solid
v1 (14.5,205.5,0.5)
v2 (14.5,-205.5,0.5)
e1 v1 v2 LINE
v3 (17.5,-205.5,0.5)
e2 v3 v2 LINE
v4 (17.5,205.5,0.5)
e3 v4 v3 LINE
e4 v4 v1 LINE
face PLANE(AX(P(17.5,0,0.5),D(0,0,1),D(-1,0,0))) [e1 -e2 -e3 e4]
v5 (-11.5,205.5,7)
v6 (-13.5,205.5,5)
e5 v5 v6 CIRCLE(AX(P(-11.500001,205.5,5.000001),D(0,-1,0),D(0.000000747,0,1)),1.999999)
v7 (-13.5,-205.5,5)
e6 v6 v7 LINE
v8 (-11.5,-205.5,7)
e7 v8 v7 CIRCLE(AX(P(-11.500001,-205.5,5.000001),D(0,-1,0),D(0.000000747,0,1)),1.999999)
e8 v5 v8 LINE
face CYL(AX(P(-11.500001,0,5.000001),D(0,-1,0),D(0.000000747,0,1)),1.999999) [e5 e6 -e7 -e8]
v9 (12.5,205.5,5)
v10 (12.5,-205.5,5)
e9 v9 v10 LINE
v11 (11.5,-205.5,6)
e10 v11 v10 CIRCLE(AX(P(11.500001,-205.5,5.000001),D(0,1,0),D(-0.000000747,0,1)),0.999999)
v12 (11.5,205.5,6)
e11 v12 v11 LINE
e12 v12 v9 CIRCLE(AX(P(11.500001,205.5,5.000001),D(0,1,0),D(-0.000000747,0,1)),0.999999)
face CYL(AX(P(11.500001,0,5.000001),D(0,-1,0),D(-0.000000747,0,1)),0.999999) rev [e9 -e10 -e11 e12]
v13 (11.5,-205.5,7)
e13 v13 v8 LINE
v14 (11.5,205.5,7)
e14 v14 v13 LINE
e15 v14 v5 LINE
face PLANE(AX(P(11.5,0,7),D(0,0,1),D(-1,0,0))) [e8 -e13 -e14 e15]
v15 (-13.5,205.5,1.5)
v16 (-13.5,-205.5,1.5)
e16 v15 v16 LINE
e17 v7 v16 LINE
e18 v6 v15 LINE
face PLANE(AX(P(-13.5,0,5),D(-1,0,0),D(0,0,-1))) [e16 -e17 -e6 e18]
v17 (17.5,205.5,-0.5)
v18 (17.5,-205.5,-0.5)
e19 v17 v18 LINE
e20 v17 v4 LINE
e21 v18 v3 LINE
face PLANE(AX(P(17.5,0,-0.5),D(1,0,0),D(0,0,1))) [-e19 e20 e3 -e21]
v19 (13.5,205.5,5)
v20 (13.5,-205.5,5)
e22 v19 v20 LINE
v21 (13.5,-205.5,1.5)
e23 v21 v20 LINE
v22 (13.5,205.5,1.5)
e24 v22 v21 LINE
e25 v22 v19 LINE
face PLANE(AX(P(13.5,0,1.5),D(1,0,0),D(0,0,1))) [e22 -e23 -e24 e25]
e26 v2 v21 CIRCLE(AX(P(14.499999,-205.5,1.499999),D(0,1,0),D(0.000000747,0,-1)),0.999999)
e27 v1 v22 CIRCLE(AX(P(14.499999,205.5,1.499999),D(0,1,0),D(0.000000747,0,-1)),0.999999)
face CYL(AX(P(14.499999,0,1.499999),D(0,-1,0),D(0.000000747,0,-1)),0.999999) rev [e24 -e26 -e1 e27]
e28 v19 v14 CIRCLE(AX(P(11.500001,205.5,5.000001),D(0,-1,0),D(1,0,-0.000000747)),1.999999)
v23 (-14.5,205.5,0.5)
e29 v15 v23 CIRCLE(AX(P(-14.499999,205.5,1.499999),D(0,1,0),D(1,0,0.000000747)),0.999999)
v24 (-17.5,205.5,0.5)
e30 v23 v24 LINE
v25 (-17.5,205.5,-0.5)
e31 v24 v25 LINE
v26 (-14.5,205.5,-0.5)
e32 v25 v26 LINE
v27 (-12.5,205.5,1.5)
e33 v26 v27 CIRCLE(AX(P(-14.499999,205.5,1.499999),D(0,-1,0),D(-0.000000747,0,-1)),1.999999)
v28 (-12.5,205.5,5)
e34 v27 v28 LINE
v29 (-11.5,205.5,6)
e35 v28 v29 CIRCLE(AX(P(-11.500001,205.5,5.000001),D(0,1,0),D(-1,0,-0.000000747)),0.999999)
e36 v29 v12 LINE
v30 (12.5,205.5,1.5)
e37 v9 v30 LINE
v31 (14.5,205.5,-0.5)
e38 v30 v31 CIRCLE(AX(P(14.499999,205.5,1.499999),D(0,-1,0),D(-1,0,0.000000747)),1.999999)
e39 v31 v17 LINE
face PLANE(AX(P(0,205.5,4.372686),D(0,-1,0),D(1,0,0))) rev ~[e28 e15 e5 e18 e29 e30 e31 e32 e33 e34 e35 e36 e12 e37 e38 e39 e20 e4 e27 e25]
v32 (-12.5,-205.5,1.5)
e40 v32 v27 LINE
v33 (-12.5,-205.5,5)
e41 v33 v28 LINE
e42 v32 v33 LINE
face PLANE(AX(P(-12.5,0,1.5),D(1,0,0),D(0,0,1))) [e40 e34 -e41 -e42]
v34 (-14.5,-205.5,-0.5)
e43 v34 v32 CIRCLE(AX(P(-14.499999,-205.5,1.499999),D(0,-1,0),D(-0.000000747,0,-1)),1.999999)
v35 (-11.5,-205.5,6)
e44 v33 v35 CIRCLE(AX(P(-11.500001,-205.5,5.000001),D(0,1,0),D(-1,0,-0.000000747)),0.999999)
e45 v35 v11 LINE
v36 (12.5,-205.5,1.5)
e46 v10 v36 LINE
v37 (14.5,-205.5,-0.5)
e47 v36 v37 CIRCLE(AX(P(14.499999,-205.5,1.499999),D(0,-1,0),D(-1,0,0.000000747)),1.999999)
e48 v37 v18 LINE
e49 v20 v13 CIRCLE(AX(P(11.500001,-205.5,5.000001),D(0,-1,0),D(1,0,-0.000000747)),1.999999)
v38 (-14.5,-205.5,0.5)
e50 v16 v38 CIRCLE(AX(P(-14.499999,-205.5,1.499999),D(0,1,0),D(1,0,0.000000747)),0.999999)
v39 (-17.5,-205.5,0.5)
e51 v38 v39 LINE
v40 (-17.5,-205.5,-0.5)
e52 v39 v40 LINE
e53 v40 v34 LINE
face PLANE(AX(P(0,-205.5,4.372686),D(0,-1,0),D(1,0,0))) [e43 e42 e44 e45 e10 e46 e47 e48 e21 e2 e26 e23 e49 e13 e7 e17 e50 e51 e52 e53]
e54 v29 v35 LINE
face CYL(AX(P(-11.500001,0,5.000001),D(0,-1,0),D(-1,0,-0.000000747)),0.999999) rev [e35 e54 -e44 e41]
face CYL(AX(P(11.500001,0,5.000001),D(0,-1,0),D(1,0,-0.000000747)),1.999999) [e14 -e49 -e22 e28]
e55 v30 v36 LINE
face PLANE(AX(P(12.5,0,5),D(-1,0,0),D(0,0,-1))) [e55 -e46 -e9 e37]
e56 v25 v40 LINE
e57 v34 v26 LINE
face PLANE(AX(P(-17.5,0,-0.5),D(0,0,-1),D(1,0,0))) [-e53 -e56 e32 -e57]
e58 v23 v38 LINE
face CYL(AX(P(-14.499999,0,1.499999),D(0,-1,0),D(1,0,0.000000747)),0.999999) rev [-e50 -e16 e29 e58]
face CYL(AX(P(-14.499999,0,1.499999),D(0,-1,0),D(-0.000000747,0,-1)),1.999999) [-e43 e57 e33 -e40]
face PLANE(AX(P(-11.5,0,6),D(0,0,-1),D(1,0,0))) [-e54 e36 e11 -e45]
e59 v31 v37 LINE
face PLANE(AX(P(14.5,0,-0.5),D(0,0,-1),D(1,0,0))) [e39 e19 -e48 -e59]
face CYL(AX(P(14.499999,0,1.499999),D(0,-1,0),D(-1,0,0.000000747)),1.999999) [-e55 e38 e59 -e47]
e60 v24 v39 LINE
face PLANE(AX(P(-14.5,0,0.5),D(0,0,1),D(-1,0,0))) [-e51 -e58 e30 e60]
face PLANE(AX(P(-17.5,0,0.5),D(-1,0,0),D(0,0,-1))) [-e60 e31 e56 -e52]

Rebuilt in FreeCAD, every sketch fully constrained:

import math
import FreeCAD as App
import Part
import Sketcher

V = App.Vector

doc = App.newDocument("Part")
body = doc.addObject("PartDesign::Body", "Body")

sketch1 = doc.addObject("Sketcher::SketchObject", "Sketch")
body.addObject(sketch1)
sketch1.AttachmentSupport = (doc.XZ_Plane, [""])
sketch1.MapMode = "FlatFace"
sketch1.addGeometry([
    Part.ArcOfCircle(Part.Circle(V(-11.5, 5, 0), V(0, 0, 1), 1), math.radians(90), math.radians(180)),
    Part.LineSegment(V(-11.5, 6, 0), V(11.5, 6, 0)),
    Part.ArcOfCircle(Part.Circle(V(11.5, 5, 0), V(0, 0, 1), 1), math.radians(0), math.radians(90)),
    Part.LineSegment(V(12.5, 5, 0), V(12.5, 1.5, 0)),
    Part.ArcOfCircle(Part.Circle(V(14.5, 1.5, 0), V(0, 0, 1), 2), math.radians(180), math.radians(270)),
    Part.LineSegment(V(14.5, -0.5, 0), V(17.5, -0.5, 0)),
    Part.LineSegment(V(17.5, -0.5, 0), V(17.5, 0.5, 0)),
    Part.LineSegment(V(17.5, 0.5, 0), V(14.5, 0.5, 0)),
    Part.ArcOfCircle(Part.Circle(V(14.5, 1.5, 0), V(0, 0, 1), 1), math.radians(180), math.radians(270)),
    Part.LineSegment(V(13.5, 1.5, 0), V(13.5, 5, 0)),
    Part.ArcOfCircle(Part.Circle(V(11.5, 5, 0), V(0, 0, 1), 2), math.radians(0), math.radians(90)),
    Part.LineSegment(V(11.5, 7, 0), V(-11.5, 7, 0)),
    Part.ArcOfCircle(Part.Circle(V(-11.5, 5, 0), V(0, 0, 1), 2), math.radians(90), math.radians(180)),
    Part.LineSegment(V(-13.5, 5, 0), V(-13.5, 1.5, 0)),
    Part.ArcOfCircle(Part.Circle(V(-14.5, 1.5, 0), V(0, 0, 1), 1), math.radians(-90), math.radians(0)),
    Part.LineSegment(V(-14.5, 0.5, 0), V(-17.5, 0.5, 0)),
    Part.LineSegment(V(-17.5, 0.5, 0), V(-17.5, -0.5, 0)),
    Part.LineSegment(V(-17.5, -0.5, 0), V(-14.5, -0.5, 0)),
    Part.ArcOfCircle(Part.Circle(V(-14.5, 1.5, 0), V(0, 0, 1), 2), math.radians(-90), math.radians(0)),
    Part.LineSegment(V(-12.5, 1.5, 0), V(-12.5, 5, 0)),
], False)
sketch1.addConstraint([
    Sketcher.Constraint("Tangent", 0, 1, 1, 1),
    Sketcher.Constraint("Tangent", 1, 2, 2, 2),
    Sketcher.Constraint("Tangent", 2, 1, 3, 1),
    Sketcher.Constraint("Tangent", 3, 2, 4, 1),
    Sketcher.Constraint("Tangent", 4, 2, 5, 1),
    Sketcher.Constraint("Coincident", 5, 2, 6, 1),
    Sketcher.Constraint("Coincident", 6, 2, 7, 1),
    Sketcher.Constraint("Tangent", 7, 2, 8, 2),
    Sketcher.Constraint("Tangent", 8, 1, 9, 1),
    Sketcher.Constraint("Tangent", 9, 2, 10, 1),
    Sketcher.Constraint("Tangent", 10, 2, 11, 1),
    Sketcher.Constraint("Tangent", 11, 2, 12, 1),
    Sketcher.Constraint("Tangent", 12, 2, 13, 1),
    Sketcher.Constraint("Tangent", 13, 2, 14, 2),
    Sketcher.Constraint("Tangent", 14, 1, 15, 1),
    Sketcher.Constraint("Coincident", 15, 2, 16, 1),
    Sketcher.Constraint("Coincident", 16, 2, 17, 1),
    Sketcher.Constraint("Tangent", 17, 2, 18, 1),
    Sketcher.Constraint("Tangent", 18, 2, 19, 1),
    Sketcher.Constraint("Tangent", 19, 2, 0, 2),
    Sketcher.Constraint("Horizontal", 1),
    Sketcher.Constraint("Vertical", 3),
    Sketcher.Constraint("Horizontal", 5),
    Sketcher.Constraint("Vertical", 6),
    Sketcher.Constraint("Horizontal", 7),
    Sketcher.Constraint("Vertical", 9),
    Sketcher.Constraint("Horizontal", 11),
    Sketcher.Constraint("Vertical", 13),
    Sketcher.Constraint("Horizontal", 15),
    Sketcher.Constraint("Vertical", 16),
    Sketcher.Constraint("Horizontal", 17),
    Sketcher.Constraint("Vertical", 19),
    Sketcher.Constraint("Coincident", 8, 3, 4, 3),
    Sketcher.Constraint("Coincident", 10, 3, 2, 3),
    Sketcher.Constraint("Coincident", 12, 3, 0, 3),
    Sketcher.Constraint("Coincident", 18, 3, 14, 3),
    Sketcher.Constraint("Equal", 0, 2),
    Sketcher.Constraint("Equal", 2, 8),
    Sketcher.Constraint("Equal", 8, 14),
    Sketcher.Constraint("Symmetric", 4, 2, 14, 1, -1, 1),
    Sketcher.Constraint("Symmetric", 6, 2, 15, 2, -2),
    Sketcher.Constraint("Radius", 0, 0.999999),
    Sketcher.Constraint("Radius", 4, 1.999999),
    Sketcher.Constraint("DistanceX", 1, 1, 1, 2, 23.0),
    Sketcher.Constraint("DistanceX", 5, 1, 5, 2, 3.0),
    Sketcher.Constraint("DistanceY", 3, 2, 3, 1, 3.5),
])
pad1 = doc.addObject("PartDesign::Pad", "Pad")
body.addObject(pad1)
pad1.Profile = sketch1
pad1.Length = 411
pad1.Midplane = True

doc.recompute()
